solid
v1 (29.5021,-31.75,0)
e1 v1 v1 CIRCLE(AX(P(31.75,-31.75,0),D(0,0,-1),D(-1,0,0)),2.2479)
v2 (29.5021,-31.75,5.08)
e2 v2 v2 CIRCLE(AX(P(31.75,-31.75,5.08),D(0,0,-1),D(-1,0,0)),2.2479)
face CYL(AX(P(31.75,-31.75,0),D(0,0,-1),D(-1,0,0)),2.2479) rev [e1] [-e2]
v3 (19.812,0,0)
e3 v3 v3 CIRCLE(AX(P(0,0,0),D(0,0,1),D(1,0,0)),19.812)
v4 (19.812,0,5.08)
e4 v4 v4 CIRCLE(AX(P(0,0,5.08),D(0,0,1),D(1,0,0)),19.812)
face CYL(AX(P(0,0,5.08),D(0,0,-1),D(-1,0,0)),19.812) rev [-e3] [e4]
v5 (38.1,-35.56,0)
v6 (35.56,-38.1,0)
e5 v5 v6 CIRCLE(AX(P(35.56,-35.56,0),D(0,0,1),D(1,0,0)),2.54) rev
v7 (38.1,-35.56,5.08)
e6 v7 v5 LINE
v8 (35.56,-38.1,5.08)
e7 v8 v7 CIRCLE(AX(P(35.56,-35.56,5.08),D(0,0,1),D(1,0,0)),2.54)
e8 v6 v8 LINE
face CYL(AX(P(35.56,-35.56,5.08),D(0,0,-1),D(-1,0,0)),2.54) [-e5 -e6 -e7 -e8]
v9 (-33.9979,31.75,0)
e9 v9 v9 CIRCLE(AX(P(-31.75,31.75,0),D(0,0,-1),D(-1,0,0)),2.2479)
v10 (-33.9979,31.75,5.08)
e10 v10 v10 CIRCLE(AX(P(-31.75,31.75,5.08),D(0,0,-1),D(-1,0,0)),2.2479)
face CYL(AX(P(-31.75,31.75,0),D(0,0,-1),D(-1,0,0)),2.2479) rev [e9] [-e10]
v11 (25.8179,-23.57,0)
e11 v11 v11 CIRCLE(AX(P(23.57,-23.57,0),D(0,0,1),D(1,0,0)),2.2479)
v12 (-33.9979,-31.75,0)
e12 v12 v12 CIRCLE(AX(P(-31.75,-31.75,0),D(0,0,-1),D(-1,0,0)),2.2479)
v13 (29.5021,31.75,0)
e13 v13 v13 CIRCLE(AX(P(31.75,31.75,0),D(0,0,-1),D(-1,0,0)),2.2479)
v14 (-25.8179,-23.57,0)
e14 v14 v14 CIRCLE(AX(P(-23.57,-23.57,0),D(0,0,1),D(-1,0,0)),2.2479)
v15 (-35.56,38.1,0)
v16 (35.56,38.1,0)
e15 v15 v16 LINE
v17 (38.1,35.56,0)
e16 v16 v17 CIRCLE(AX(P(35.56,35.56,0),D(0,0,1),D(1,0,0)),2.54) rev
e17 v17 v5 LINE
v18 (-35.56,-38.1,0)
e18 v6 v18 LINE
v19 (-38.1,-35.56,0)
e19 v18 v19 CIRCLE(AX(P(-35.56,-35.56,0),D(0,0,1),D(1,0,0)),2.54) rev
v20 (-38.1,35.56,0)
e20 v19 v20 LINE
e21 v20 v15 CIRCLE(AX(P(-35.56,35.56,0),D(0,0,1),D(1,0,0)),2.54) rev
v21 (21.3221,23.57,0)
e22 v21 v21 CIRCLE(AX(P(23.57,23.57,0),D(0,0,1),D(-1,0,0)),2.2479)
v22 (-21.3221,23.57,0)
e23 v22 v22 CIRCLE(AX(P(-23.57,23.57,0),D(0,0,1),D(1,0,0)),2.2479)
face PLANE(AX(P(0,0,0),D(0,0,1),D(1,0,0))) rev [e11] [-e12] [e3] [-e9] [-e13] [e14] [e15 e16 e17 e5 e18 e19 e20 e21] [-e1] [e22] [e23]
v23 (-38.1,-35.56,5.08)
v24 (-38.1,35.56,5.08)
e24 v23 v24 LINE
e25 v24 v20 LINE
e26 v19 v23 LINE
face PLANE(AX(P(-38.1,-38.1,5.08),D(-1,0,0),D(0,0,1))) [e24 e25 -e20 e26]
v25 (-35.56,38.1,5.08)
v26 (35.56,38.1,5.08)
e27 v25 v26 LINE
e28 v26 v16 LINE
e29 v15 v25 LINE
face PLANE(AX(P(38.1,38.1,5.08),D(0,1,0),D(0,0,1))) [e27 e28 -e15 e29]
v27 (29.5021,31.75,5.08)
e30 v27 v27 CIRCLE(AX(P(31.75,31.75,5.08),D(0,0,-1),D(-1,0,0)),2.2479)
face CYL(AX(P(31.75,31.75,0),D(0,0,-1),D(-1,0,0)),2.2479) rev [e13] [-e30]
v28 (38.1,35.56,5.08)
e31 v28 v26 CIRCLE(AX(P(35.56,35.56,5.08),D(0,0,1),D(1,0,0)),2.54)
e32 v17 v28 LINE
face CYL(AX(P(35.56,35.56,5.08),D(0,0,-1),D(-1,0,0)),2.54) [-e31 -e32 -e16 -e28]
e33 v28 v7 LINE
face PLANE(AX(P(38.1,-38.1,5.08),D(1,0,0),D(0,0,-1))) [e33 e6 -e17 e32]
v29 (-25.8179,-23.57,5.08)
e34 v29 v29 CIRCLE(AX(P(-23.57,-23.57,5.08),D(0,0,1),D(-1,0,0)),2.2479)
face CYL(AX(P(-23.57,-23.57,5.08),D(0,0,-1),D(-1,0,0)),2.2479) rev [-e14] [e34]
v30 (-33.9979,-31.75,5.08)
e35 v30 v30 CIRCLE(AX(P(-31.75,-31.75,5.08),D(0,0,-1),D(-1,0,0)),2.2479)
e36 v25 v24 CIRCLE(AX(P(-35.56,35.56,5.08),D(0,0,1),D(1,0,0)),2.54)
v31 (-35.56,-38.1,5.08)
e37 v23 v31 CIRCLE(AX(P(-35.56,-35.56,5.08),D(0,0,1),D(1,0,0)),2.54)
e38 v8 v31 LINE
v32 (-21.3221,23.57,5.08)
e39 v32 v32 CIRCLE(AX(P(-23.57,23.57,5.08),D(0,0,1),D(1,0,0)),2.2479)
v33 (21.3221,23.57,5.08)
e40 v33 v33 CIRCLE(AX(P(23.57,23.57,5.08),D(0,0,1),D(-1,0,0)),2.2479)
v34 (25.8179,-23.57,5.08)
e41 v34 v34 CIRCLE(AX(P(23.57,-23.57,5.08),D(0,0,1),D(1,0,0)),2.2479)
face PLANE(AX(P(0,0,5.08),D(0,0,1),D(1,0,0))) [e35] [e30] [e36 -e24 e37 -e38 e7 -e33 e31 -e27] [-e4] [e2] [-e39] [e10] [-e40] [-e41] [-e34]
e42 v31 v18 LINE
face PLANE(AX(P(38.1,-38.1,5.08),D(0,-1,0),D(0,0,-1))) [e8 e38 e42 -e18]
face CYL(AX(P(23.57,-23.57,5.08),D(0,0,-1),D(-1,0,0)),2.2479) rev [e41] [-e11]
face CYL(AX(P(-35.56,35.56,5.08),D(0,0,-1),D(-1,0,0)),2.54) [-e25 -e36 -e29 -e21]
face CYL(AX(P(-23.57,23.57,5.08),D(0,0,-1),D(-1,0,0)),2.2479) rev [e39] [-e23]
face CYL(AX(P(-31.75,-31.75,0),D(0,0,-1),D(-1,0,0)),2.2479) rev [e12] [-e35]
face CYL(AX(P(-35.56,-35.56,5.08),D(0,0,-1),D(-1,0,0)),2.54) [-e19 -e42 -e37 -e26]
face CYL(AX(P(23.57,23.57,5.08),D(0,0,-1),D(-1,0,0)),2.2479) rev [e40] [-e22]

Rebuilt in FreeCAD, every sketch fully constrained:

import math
import FreeCAD as App
import Part
import Sketcher
from FreeCAD import Vector
Q = App.Units.Quantity


def edges_at(feature, points):
    """Names of the edges that pass closest to the given points."""
    edges = feature.Shape.Edges
    near = lambda p: min(range(len(edges)), key=lambda i: edges[i].distToShape(Part.Vertex(*p))[0])
    return sorted({f"Edge{near(p) + 1}" for p in points})

doc = App.newDocument("Part")
params = doc.addObject("Spreadsheet::Sheet", "Params")
for row, (alias, value) in enumerate([
    ("sketch1_diameter", "1.56 in"),
    ("sketch1_diameter2", "0.177 in"),
    ("pad1_length", "0.2 in"),
    ("fillet_radius", "0.1 in"),
    ("sketch2_radius", "0.25 in"),
    ("pad2_length", "0.2 in"),
    ("sketch3_width", "3 in"),
    ("pad3_length", "0.2 in"),
    ("sketch4_diameter", "0.177 in"),
    ("hole_diameter", "0.177 in"),
    ("fillet2_radius", "0.1 in"),
], start=1):
    params.set(f"A{row}", alias)
    params.set(f"B{row}", "=" + value)
    params.setAlias(f"B{row}", alias)

body = doc.addObject("PartDesign::Body", "Body")

sketch1 = doc.addObject("Sketcher::SketchObject", "Sketch")
body.addObject(sketch1)
sketch1.AttachmentSupport = (doc.XY_Plane, [""])
sketch1.MapMode = "FlatFace"
sketch1.addGeometry([
    Part.LineSegment(Vector(-30.7, 30.7, 0), Vector(-30.7, -30.7, 0)),
    Part.LineSegment(Vector(-30.7, -30.7, 0), Vector(30.7, -30.7, 0)),
    Part.LineSegment(Vector(30.7, -30.7, 0), Vector(30.7, 30.7, 0)),
    Part.LineSegment(Vector(30.7, 30.7, 0), Vector(-30.7, 30.7, 0)),
    Part.Circle(Vector(-23.6, -23.6, 0), Vector(0, 0, 1), 2.2),
    Part.Circle(Vector(23.6, -23.6, 0), Vector(0, 0, 1), 2.2),
    Part.Circle(Vector(-23.6, 23.6, 0), Vector(0, 0, 1), 2.2),
    Part.Circle(Vector(0, 0, 0), Vector(0, 0, 1), 19.8),
    Part.Circle(Vector(23.6, 23.6, 0), Vector(0, 0, 1), 2.2),
], False)
sketch1.addConstraint([
    Sketcher.Constraint("Coincident", 0, 2, 1, 1),
    Sketcher.Constraint("Coincident", 1, 2, 2, 1),
    Sketcher.Constraint("Coincident", 2, 2, 3, 1),
    Sketcher.Constraint("Coincident", 3, 2, 0, 1),
    Sketcher.Constraint("Vertical", 0),
    Sketcher.Constraint("Horizontal", 1),
    Sketcher.Constraint("Vertical", 2),
    Sketcher.Constraint("Horizontal", 3),
    Sketcher.Constraint("Coincident", 7, 3, -1, 1),
    Sketcher.Constraint("Equal", 4, 5),
    Sketcher.Constraint("Equal", 5, 6),
    Sketcher.Constraint("Equal", 6, 8),
    Sketcher.Constraint("Symmetric", 5, 3, 6, 3, -1, 1),
    Sketcher.Constraint("Symmetric", 4, 3, 8, 3, -1, 1),
    Sketcher.Constraint("Symmetric", 0, 2, 2, 2, -1, 1),
    Sketcher.Constraint("Symmetric", 4, 3, 5, 3, -2),
    Sketcher.Constraint("Equal", 3, 0),
    Sketcher.Constraint("Diameter", 7, Q("1.56 in")),
    Sketcher.Constraint("Diameter", 4, Q("0.177 in")),
    Sketcher.Constraint("DistanceX", 1, 1, 1, 2, Q("61.48 mm")),
    Sketcher.Constraint("DistanceX", 4, 3, -1, 1, Q("23.57 mm")),
    Sketcher.Constraint("DistanceY", 4, 3, -1, 1, Q("23.57 mm")),
])
sketch1.setExpression("Constraints[17]", "Params.sketch1_diameter")
sketch1.setExpression("Constraints[18]", "Params.sketch1_diameter2")
pad1 = doc.addObject("PartDesign::Pad", "Pad")
body.addObject(pad1)
pad1.Profile = sketch1
pad1.setExpression("Length", "Params.pad1_length")
doc.recompute()

fillet = doc.addObject("PartDesign::Fillet", "Fillet")
body.addObject(fillet)
fillet.Base = (pad1, edges_at(pad1, [
    (-30.74, 30.74, 2.54),
    (30.74, 30.74, 2.54),
    (30.74, -30.74, 2.54),
    (-30.74, -30.74, 2.54),
]))
fillet.setExpression("Radius", "Params.fillet_radius")

sketch2 = doc.addObject("Sketcher::SketchObject", "Sketch001")
body.addObject(sketch2)
sketch2.AttachmentSupport = (doc.XY_Plane, [""])
sketch2.MapMode = "FlatFace"
sketch2.addGeometry([
    Part.LineSegment(Vector(22, 31, 0), Vector(27, 36, 0)),
    Part.ArcOfCircle(Part.Circle(Vector(32, 32, 0), Vector(0, 0, 1), 6), math.radians(-45), math.radians(135)),
    Part.LineSegment(Vector(36, 27, 0), Vector(31, 22, 0)),
    Part.LineSegment(Vector(31, 22, 0), Vector(22, 31, 0)),
    Part.LineSegment(Vector(-31, 22, 0), Vector(-36, 27, 0)),
    Part.ArcOfCircle(Part.Circle(Vector(-32, 32, 0), Vector(0, 0, 1), 6), math.radians(45), math.radians(225)),
    Part.LineSegment(Vector(-27, 36, 0), Vector(-22, 31, 0)),
    Part.LineSegment(Vector(-22, 31, 0), Vector(-31, 22, 0)),
    Part.LineSegment(Vector(-22, -31, 0), Vector(-27, -36, 0)),
    Part.ArcOfCircle(Part.Circle(Vector(-32, -32, 0), Vector(0, 0, 1), 6), math.radians(135), math.radians(315)),
    Part.LineSegment(Vector(-36, -27, 0), Vector(-31, -22, 0)),
    Part.LineSegment(Vector(-31, -22, 0), Vector(-22, -31, 0)),
    Part.LineSegment(Vector(31, -22, 0), Vector(36, -27, 0)),
    Part.ArcOfCircle(Part.Circle(Vector(32, -32, 0), Vector(0, 0, 1), 6), math.radians(-135), math.radians(45)),
    Part.LineSegment(Vector(27, -36, 0), Vector(22, -31, 0)),
    Part.LineSegment(Vector(22, -31, 0), Vector(31, -22, 0)),
], False)
sketch2.addConstraint([
    Sketcher.Constraint("Tangent", 0, 2, 1, 2),
    Sketcher.Constraint("Tangent", 1, 1, 2, 1),
    Sketcher.Constraint("Coincident", 2, 2, 3, 1),
    Sketcher.Constraint("Coincident", 3, 2, 0, 1),
    Sketcher.Constraint("Tangent", 4, 2, 5, 2),
    Sketcher.Constraint("Tangent", 5, 1, 6, 1),
    Sketcher.Constraint("Coincident", 6, 2, 7, 1),
    Sketcher.Constraint("Coincident", 7, 2, 4, 1),
    Sketcher.Constraint("Tangent", 8, 2, 9, 2),
    Sketcher.Constraint("Tangent", 9, 1, 10, 1),
    Sketcher.Constraint("Coincident", 10, 2, 11, 1),
    Sketcher.Constraint("Coincident", 11, 2, 8, 1),
    Sketcher.Constraint("Tangent", 12, 2, 13, 2),
    Sketcher.Constraint("Tangent", 13, 1, 14, 1),
    Sketcher.Constraint("Coincident", 14, 2, 15, 1),
    Sketcher.Constraint("Coincident", 15, 2, 12, 1),
    Sketcher.Constraint("Equal", 1, 5),
    Sketcher.Constraint("Equal", 5, 9),
    Sketcher.Constraint("Equal", 9, 13),
    Sketcher.Constraint("Symmetric", 1, 3, 9, 3, -1, 1),
    Sketcher.Constraint("Symmetric", 5, 3, 13, 3, -1, 1),
    Sketcher.Constraint("Symmetric", 2, 2, 10, 2, -1, 1),
    Sketcher.Constraint("Symmetric", 3, 2, 11, 2, -1, 1),
    Sketcher.Constraint("Symmetric", 6, 2, 14, 2, -1, 1),
    Sketcher.Constraint("Symmetric", 7, 2, 15, 2, -1, 1),
    Sketcher.Constraint("Symmetric", 1, 3, 5, 3, -2),
    Sketcher.Constraint("Symmetric", 3, 2, 6, 2, -2),
    Sketcher.Constraint("Symmetric", 2, 2, 7, 2, -2),
    Sketcher.Constraint("Parallel", 0, 2),
    Sketcher.Constraint("Perpendicular", 2, 3),
    Sketcher.Constraint("Parallel", 3, 4),
    Sketcher.Constraint("Radius", 1, Q("0.25 in")),
    Sketcher.Constraint("DistanceX", 5, 3, 1, 3, Q("2.5 in")),
    Sketcher.Constraint("DistanceY", 9, 3, 5, 3, Q("2.5 in")),
    Sketcher.Constraint("DistanceX", -1, 1, 2, 2, Q("30.74 mm")),
])
sketch2.setExpression("Constraints[31]", "Params.sketch2_radius")
pad2 = doc.addObject("PartDesign::Pad", "Pad001")
body.addObject(pad2)
pad2.Profile = sketch2
pad2.setExpression("Length", "Params.pad2_length")

sketch3 = doc.addObject("Sketcher::SketchObject", "Sketch002")
body.addObject(sketch3)
sketch3.AttachmentSupport = (doc.XY_Plane, [""])
sketch3.MapMode = "FlatFace"
sketch3.addGeometry([
    Part.LineSegment(Vector(38, 38, 0), Vector(38, -38, 0)),
    Part.LineSegment(Vector(38, -38, 0), Vector(-38, -38, 0)),
    Part.LineSegment(Vector(-38, -38, 0), Vector(-38, 38, 0)),
    Part.LineSegment(Vector(-38, 38, 0), Vector(38, 38, 0)),
    Part.LineSegment(Vector(-31, -31, 0), Vector(31, -31, 0)),
    Part.LineSegment(Vector(31, -31, 0), Vector(31, 31, 0)),
    Part.LineSegment(Vector(31, 31, 0), Vector(-31, 31, 0)),
    Part.LineSegment(Vector(-31, 31, 0), Vector(-31, -31, 0)),
], False)
sketch3.addConstraint([
    Sketcher.Constraint("Coincident", 0, 2, 1, 1),
    Sketcher.Constraint("Coincident", 1, 2, 2, 1),
    Sketcher.Constraint("Coincident", 2, 2, 3, 1),
    Sketcher.Constraint("Coincident", 3, 2, 0, 1),
    Sketcher.Constraint("Coincident", 4, 2, 5, 1),
    Sketcher.Constraint("Coincident", 5, 2, 6, 1),
    Sketcher.Constraint("Coincident", 6, 2, 7, 1),
    Sketcher.Constraint("Coincident", 7, 2, 4, 1),
    Sketcher.Constraint("Vertical", 0),
    Sketcher.Constraint("Horizontal", 1),
    Sketcher.Constraint("Vertical", 2),
    Sketcher.Constraint("Horizontal", 3),
    Sketcher.Constraint("Horizontal", 4),
    Sketcher.Constraint("Vertical", 5),
    Sketcher.Constraint("Horizontal", 6),
    Sketcher.Constraint("Vertical", 7),
    Sketcher.Constraint("Symmetric", 0, 2, 2, 2, -1, 1),
    Sketcher.Constraint("Symmetric", 4, 2, 6, 2, -1, 1),
    Sketcher.Constraint("Equal", 3, 0),
    Sketcher.Constraint("Equal", 6, 5),
    Sketcher.Constraint("DistanceX", 1, 2, 1, 1, Q("3 in")),
    Sketcher.Constraint("DistanceX", 4, 1, 4, 2, Q("61.48 mm")),
])
sketch3.setExpression("Constraints[20]", "Params.sketch3_width")
pad3 = doc.addObject("PartDesign::Pad", "Pad002")
body.addObject(pad3)
pad3.Profile = sketch3
pad3.setExpression("Length", "Params.pad3_length")

sketch4 = doc.addObject("Sketcher::SketchObject", "Sketch003")
body.addObject(sketch4)
sketch4.AttachmentSupport = (doc.XY_Plane, [""])
sketch4.MapMode = "FlatFace"
sketch4.addGeometry([
    Part.Circle(Vector(-31.8, 31.8, 0), Vector(0, 0, 1), 2.2),
    Part.Circle(Vector(0, 0, 0), Vector(0, 0, 1), 2.2),
    Part.Circle(Vector(-31.8, -31.8, 0), Vector(0, 0, 1), 2.2),
    Part.Circle(Vector(31.8, -31.8, 0), Vector(0, 0, 1), 2.2),
    Part.Circle(Vector(31.8, 31.8, 0), Vector(0, 0, 1), 2.2),
], False)
sketch4.addConstraint([
    Sketcher.Constraint("Coincident", 1, 3, -1, 1),
    Sketcher.Constraint("Equal", 0, 1),
    Sketcher.Constraint("Equal", 1, 2),
    Sketcher.Constraint("Equal", 2, 3),
    Sketcher.Constraint("Equal", 3, 4),
    Sketcher.Constraint("Symmetric", 0, 3, 3, 3, -1, 1),
    Sketcher.Constraint("Symmetric", 2, 3, 4, 3, -1, 1),
    Sketcher.Constraint("Symmetric", 2, 3, 3, 3, -2),
    Sketcher.Constraint("Diameter", 0, Q("0.177 in")),
    Sketcher.Constraint("DistanceY", 2, 3, 0, 3, Q("2.5 in")),
    Sketcher.Constraint("DistanceX", 2, 3, 3, 3, Q("2.5 in")),
])
sketch4.setExpression("Constraints[8]", "Params.sketch4_diameter")
doc.recompute()
hole = doc.addObject("PartDesign::Hole", "Hole")
body.addObject(hole)
hole.Profile = sketch4
hole.ThreadType = "None"
hole.setExpression("Diameter", "Params.hole_diameter")
hole.DepthType = "ThroughAll"
hole.Reversed = True
doc.recompute()

fillet2 = doc.addObject("PartDesign::Fillet", "Fillet001")
body.addObject(fillet2)
fillet2.Base = (hole, edges_at(hole, [
    (-38.1, 38.1, 2.54),
    (-38.1, -38.1, 2.54),
    (38.1, -38.1, 2.54),
    (38.1, 38.1, 2.54),
]))
fillet2.setExpression("Radius", "Params.fillet2_radius")

doc.recompute()
